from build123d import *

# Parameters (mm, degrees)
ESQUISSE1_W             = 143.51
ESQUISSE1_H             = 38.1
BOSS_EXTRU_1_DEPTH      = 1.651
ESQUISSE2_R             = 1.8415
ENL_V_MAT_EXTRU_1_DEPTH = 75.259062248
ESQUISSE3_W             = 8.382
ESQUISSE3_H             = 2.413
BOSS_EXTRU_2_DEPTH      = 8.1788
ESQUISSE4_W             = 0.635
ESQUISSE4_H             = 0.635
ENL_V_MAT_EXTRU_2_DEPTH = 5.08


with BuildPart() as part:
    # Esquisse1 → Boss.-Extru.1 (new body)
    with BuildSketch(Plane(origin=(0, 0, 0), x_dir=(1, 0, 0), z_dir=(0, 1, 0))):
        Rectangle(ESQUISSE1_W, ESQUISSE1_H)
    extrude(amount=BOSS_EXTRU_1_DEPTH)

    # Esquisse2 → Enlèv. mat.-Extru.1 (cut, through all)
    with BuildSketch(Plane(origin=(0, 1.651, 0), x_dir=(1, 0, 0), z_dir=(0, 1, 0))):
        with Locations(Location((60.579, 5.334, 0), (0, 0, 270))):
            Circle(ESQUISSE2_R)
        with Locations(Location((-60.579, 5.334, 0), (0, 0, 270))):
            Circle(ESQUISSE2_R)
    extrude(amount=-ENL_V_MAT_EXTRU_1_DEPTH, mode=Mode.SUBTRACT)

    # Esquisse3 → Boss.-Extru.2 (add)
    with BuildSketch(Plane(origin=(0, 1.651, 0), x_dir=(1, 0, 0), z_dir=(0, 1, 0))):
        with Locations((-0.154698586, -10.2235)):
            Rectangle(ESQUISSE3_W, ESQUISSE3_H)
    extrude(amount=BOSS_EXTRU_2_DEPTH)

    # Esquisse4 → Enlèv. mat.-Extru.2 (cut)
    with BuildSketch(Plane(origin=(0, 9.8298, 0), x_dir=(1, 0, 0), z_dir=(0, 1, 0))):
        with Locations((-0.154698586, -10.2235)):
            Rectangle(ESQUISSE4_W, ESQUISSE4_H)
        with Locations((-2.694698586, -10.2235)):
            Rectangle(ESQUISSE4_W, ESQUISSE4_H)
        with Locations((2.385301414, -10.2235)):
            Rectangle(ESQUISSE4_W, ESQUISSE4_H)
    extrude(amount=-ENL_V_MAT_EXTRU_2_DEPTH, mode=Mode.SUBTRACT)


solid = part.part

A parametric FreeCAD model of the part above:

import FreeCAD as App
import Part
import Sketcher
from FreeCAD import Vector
Q = App.Units.Quantity


def add_polygon(sketch, points):
    """Adds a closed chain of lines whose ends are joined by coincident constraints."""
    first, n = sketch.GeometryCount, len(points)
    for a, b in zip(points, points[1:] + points[:1]):
        sketch.addGeometry(Part.LineSegment(App.Vector(*a, 0), App.Vector(*b, 0)), False)
    for i in range(n):
        sketch.addConstraint(Sketcher.Constraint("Coincident", first + i, 2, first + (i + 1) % n, 1))

doc = App.newDocument("Part")
body = doc.addObject("PartDesign::Body", "Body")

# Sketch on XZ plane
sketch1 = doc.addObject("Sketcher::SketchObject", "Sketch")
body.addObject(sketch1)
sketch1.AttachmentSupport = (doc.XZ_Plane, [""])
sketch1.MapMode = "FlatFace"
add_polygon(sketch1, [(-72, -19), (-72, 19), (72, 19), (72, -19)])  # lines 0-3
sketch1.addConstraint(Sketcher.Constraint("Vertical", 0))
sketch1.addConstraint(Sketcher.Constraint("Horizontal", 1))
sketch1.addConstraint(Sketcher.Constraint("Vertical", 2))
sketch1.addConstraint(Sketcher.Constraint("Horizontal", 3))
sketch1.addConstraint(Sketcher.Constraint("Symmetric", 0, 2, 2, 2, -1, 1))
sketch1.addConstraint(Sketcher.Constraint("DistanceY", 0, 1, 0, 2, Q("1.5 in")))
sketch1.addConstraint(Sketcher.Constraint("DistanceX", 1, 1, 1, 2, Q("5.65 in")))
pad1 = doc.addObject("PartDesign::Pad", "Pad")
body.addObject(pad1)
pad1.Profile = sketch1
pad1.Length = Q("0.065 in")
pad1.Reversed = True

# Sketch on XZ plane
sketch2 = doc.addObject("Sketcher::SketchObject", "Sketch001")
body.addObject(sketch2)
sketch2.AttachmentSupport = (doc.XZ_Plane, [""])
sketch2.MapMode = "FlatFace"
sketch2.AttachmentOffset = App.Placement(Vector(0, 0, -0.065 * 25.4), App.Rotation())
sketch2.addGeometry(Part.Circle(Vector(60.6, -5.3, 0), Vector(0, 0, 1), 1.8), False)
sketch2.addGeometry(Part.Circle(Vector(-60.6, -5.3, 0), Vector(0, 0, 1), 1.8), False)
sketch2.addConstraint(Sketcher.Constraint("Equal", 0, 1))
sketch2.addConstraint(Sketcher.Constraint("Symmetric", 0, 3, 1, 3, -2))
sketch2.addConstraint(Sketcher.Constraint("Diameter", 0, Q("0.145 in")))
sketch2.addConstraint(Sketcher.Constraint("DistanceY", 0, 3, -1, 1, Q("0.21 in")))
sketch2.addConstraint(Sketcher.Constraint("DistanceX", 1, 3, 0, 3, Q("4.77 in")))
pocket1 = doc.addObject("PartDesign::Pocket", "Pocket")
body.addObject(pocket1)
pocket1.Profile = sketch2
pocket1.Type = "ThroughAll"
pocket1.Reversed = True

# Sketch on XZ plane
sketch3 = doc.addObject("Sketcher::SketchObject", "Sketch002")
body.addObject(sketch3)
sketch3.AttachmentSupport = (doc.XZ_Plane, [""])
sketch3.MapMode = "FlatFace"
sketch3.AttachmentOffset = App.Placement(Vector(0, 0, -0.065 * 25.4), App.Rotation())
add_polygon(sketch3, [(-4.3, 9), (-4.3, 11.4), (4, 11.4), (4, 9)])  # lines 0-3
sketch3.addConstraint(Sketcher.Constraint("Vertical", 0))
sketch3.addConstraint(Sketcher.Constraint("Horizontal", 1))
sketch3.addConstraint(Sketcher.Constraint("Vertical", 2))
sketch3.addConstraint(Sketcher.Constraint("Horizontal", 3))
sketch3.addConstraint(Sketcher.Constraint("DistanceX", 1, 1, 1, 2, Q("0.33 in")))
sketch3.addConstraint(Sketcher.Constraint("DistanceY", 0, 1, 0, 2, Q("0.095 in")))
sketch3.addConstraint(Sketcher.Constraint("DistanceY", -1, 1, 0, 2, Q("0.45 in")))
sketch3.addConstraint(Sketcher.Constraint("DistanceX", 0, 2, -1, 1, 4.345699))
pad2 = doc.addObject("PartDesign::Pad", "Pad001")
body.addObject(pad2)
pad2.Profile = sketch3
pad2.Length = Q("0.322 in")
pad2.Reversed = True

# Sketch on XZ plane
sketch4 = doc.addObject("Sketcher::SketchObject", "Sketch003")
body.addObject(sketch4)
sketch4.AttachmentSupport = (doc.XZ_Plane, [""])
sketch4.MapMode = "FlatFace"
sketch4.AttachmentOffset = App.Placement(Vector(0, 0, -0.387 * 25.4), App.Rotation())
add_polygon(sketch4, [(-0.5, 9.9), (-0.5, 10.5), (0.2, 10.5), (0.2, 9.9)])  # lines 0-3
add_polygon(sketch4, [(-3, 9.9), (-3, 10.5), (-2.4, 10.5), (-2.4, 9.9)])  # lines 4-7
add_polygon(sketch4, [(2.1, 9.9), (2.1, 10.5), (2.7, 10.5), (2.7, 9.9)])  # lines 8-11
sketch4.addConstraint(Sketcher.Constraint("Vertical", 0))
sketch4.addConstraint(Sketcher.Constraint("Horizontal", 1))
sketch4.addConstraint(Sketcher.Constraint("Vertical", 2))
sketch4.addConstraint(Sketcher.Constraint("Horizontal", 3))
sketch4.addConstraint(Sketcher.Constraint("Vertical", 4))
sketch4.addConstraint(Sketcher.Constraint("Horizontal", 5))
sketch4.addConstraint(Sketcher.Constraint("Vertical", 6))
sketch4.addConstraint(Sketcher.Constraint("Horizontal", 7))
sketch4.addConstraint(Sketcher.Constraint("Vertical", 8))
sketch4.addConstraint(Sketcher.Constraint("Horizontal", 9))
sketch4.addConstraint(Sketcher.Constraint("Vertical", 10))
sketch4.addConstraint(Sketcher.Constraint("Horizontal", 11))
sketch4.addConstraint(Sketcher.Constraint("Horizontal", 1, 2, 4, 2))
sketch4.addConstraint(Sketcher.Constraint("Horizontal", 3, 2, 6, 2))
sketch4.addConstraint(Sketcher.Constraint("Horizontal", 5, 2, 8, 2))
sketch4.addConstraint(Sketcher.Constraint("Horizontal", 7, 2, 10, 2))
sketch4.addConstraint(Sketcher.Constraint("Equal", 3, 5))
sketch4.addConstraint(Sketcher.Constraint("Equal", 7, 9))
sketch4.addConstraint(Sketcher.Constraint("Equal", 11, 0))
sketch4.addConstraint(Sketcher.Constraint("DistanceX", 4, 2, 0, 2, Q("0.1 in")))
sketch4.addConstraint(Sketcher.Constraint("DistanceX", 0, 2, 8, 2, Q("0.1 in")))
sketch4.addConstraint(Sketcher.Constraint("DistanceX", 1, 1, 1, 2, Q("0.025 in")))
sketch4.addConstraint(Sketcher.Constraint("DistanceY", -1, 1, 2, 2, Q("0.39 in")))
sketch4.addConstraint(Sketcher.Constraint("DistanceX", 0, 2, -1, 1, 0.472199))
pocket2 = doc.addObject("PartDesign::Pocket", "Pocket001")
body.addObject(pocket2)
pocket2.Profile = sketch4
pocket2.Length = Q("0.2 in")
pocket2.Reversed = True

doc.recompute()
